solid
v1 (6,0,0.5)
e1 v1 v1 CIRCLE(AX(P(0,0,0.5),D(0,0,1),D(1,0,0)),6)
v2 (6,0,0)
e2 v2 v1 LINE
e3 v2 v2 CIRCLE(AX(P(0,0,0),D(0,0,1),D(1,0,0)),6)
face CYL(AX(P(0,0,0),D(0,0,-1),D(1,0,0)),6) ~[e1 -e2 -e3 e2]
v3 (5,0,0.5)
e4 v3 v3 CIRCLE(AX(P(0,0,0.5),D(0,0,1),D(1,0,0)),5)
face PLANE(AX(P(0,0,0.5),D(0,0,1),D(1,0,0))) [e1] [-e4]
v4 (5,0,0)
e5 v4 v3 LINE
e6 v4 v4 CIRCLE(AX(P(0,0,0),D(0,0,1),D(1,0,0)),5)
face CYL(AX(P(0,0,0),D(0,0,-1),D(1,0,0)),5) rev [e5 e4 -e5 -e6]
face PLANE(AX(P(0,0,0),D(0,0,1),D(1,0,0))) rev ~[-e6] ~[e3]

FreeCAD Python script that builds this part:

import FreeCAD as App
import Part
import Sketcher
from FreeCAD import Vector
Q = App.Units.Quantity

doc = App.newDocument("Part")
body = doc.addObject("PartDesign::Body", "Body")

# Sketch on XY plane
sketch1 = body.newObject("Sketcher::SketchObject", "Sketch")
sketch1.AttachmentSupport = (doc.getObject("XY_Plane"), [""])
sketch1.MapMode = "FlatFace"
sketch1.addGeometry([
    Part.Circle(Vector(0, 0, 0), Vector(0, 0, 1), 6),
    Part.Circle(Vector(0, 0, 0), Vector(0, 0, 1), 5),
], False)
sketch1.addConstraint([
    Sketcher.Constraint("Coincident", 0, 3, -1, 1),
    Sketcher.Constraint("Coincident", 1, 3, -1, 1),
    Sketcher.Constraint("Diameter", 0, Q("12 mm")),
    Sketcher.Constraint("Diameter", 1, Q("10 mm")),
])
pad1 = body.newObject("PartDesign::Pad", "Pad")
pad1.Profile = sketch1
pad1.Length = 0.5

doc.recompute()
